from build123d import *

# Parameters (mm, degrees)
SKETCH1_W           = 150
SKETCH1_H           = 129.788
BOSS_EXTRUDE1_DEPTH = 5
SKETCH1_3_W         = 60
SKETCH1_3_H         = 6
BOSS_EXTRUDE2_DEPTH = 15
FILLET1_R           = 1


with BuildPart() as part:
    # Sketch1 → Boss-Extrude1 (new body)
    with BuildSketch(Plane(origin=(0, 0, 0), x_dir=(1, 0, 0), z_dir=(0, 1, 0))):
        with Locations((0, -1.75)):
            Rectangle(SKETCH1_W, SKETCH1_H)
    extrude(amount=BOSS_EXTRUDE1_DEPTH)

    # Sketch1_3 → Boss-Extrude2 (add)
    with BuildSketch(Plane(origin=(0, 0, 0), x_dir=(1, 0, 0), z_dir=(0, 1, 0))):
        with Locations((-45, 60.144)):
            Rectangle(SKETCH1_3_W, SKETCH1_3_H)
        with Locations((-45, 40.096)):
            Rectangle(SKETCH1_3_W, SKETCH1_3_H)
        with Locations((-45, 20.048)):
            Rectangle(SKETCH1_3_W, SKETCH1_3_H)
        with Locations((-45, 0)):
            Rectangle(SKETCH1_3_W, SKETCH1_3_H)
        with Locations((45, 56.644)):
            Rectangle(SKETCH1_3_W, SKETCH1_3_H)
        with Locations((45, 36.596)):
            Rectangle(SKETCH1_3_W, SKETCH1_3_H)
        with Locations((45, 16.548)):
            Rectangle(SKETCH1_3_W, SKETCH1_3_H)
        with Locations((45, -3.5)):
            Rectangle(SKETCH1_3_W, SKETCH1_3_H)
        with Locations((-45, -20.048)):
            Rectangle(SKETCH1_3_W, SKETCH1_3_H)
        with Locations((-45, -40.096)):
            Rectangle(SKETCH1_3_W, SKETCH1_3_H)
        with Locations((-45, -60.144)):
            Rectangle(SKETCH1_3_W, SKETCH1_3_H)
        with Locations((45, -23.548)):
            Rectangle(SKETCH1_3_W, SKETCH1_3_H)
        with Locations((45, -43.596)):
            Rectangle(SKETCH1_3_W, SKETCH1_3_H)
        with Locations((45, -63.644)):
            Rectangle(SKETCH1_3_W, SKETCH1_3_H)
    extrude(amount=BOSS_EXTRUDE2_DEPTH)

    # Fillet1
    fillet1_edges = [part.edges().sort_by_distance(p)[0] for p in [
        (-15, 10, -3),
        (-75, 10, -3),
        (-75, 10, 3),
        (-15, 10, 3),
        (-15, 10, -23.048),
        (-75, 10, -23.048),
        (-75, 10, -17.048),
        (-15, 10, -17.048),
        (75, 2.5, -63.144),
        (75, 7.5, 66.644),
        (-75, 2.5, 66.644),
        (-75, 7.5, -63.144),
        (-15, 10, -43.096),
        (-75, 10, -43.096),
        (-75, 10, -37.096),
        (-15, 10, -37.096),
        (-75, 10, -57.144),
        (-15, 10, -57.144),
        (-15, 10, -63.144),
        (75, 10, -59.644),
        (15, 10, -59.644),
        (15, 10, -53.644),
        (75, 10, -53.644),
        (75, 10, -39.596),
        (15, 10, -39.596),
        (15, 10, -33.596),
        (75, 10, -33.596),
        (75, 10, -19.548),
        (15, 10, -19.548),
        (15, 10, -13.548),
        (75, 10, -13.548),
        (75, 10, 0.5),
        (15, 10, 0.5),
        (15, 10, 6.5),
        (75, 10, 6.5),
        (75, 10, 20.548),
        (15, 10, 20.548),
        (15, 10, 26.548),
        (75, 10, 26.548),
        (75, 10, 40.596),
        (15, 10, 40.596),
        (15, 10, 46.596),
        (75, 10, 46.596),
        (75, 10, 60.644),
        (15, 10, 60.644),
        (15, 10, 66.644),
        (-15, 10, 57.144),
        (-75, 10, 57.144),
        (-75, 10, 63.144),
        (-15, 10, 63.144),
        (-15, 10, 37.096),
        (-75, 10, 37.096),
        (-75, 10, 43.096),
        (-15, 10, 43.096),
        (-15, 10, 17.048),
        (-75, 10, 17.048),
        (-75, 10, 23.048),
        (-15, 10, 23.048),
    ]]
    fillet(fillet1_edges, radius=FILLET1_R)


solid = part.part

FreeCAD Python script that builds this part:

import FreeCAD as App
import Part
import Sketcher
from FreeCAD import Vector


def edges_at(feature, points):
    """Names of the edges that pass closest to the given points."""
    edges = feature.Shape.Edges
    near = lambda p: min(range(len(edges)), key=lambda i: edges[i].distToShape(Part.Vertex(*p))[0])
    return sorted({f"Edge{near(p) + 1}" for p in points})


def add_polygon(sketch, points):
    """Adds a closed chain of lines whose ends are joined by coincident constraints."""
    first, n = sketch.GeometryCount, len(points)
    for a, b in zip(points, points[1:] + points[:1]):
        sketch.addGeometry(Part.LineSegment(App.Vector(*a, 0), App.Vector(*b, 0)), False)
    for i in range(n):
        sketch.addConstraint(Sketcher.Constraint("Coincident", first + i, 2, first + (i + 1) % n, 1))

doc = App.newDocument("Part")
params = doc.addObject("Spreadsheet::Sheet", "Params")
for row, (alias, value) in enumerate([
    ("sketch1_width", "150 mm"),
    ("pad1_length", "5 mm"),
    ("sketch2_width", "60 mm"),
    ("sketch2_height", "6 mm"),
    ("pad2_length", "15 mm"),
    ("fillet_radius", "1 mm"),
], start=1):
    params.set(f"A{row}", alias)
    params.set(f"B{row}", "=" + value)
    params.setAlias(f"B{row}", alias)

body = doc.addObject("PartDesign::Body", "Body")

# Sketch on XZ plane
sketch1 = body.newObject("Sketcher::SketchObject", "Sketch")
sketch1.AttachmentSupport = (doc.getObject("XZ_Plane"), [""])
sketch1.MapMode = "FlatFace"
add_polygon(sketch1, [(-75, -63), (-75, 67), (75, 67), (75, -63)])  # lines 0-3
sketch1.addConstraint([
    Sketcher.Constraint("Vertical", 0),
    Sketcher.Constraint("Horizontal", 1),
    Sketcher.Constraint("Vertical", 2),
    Sketcher.Constraint("Horizontal", 3),
    Sketcher.Constraint("DistanceX", 1, 1, 1, 2, 150.0),
    Sketcher.Constraint("DistanceX", 0, 2, -1, 1, 75.0),
    Sketcher.Constraint("DistanceY", 0, 1, 0, 2, 129.788),
    Sketcher.Constraint("DistanceY", -1, 1, 0, 2, 66.644),
])
sketch1.setExpression("Constraints[8]", "Params.sketch1_width")
pad1 = body.newObject("PartDesign::Pad", "Pad")
pad1.Profile = sketch1
pad1.setExpression("Length", "Params.pad1_length")
pad1.Reversed = True

# Sketch on XZ plane
sketch2 = body.newObject("Sketcher::SketchObject", "Sketch001")
sketch2.AttachmentSupport = (doc.getObject("XZ_Plane"), [""])
sketch2.MapMode = "FlatFace"
add_polygon(sketch2, [(-75, -63), (-75, -57), (-15, -57), (-15, -63)])  # lines 0-3
add_polygon(sketch2, [(-75, -43), (-75, -37), (-15, -37), (-15, -43)])  # lines 4-7
add_polygon(sketch2, [(-75, -23), (-75, -17), (-15, -17), (-15, -23)])  # lines 8-11
add_polygon(sketch2, [(-75, -3), (-75, 3), (-15, 3), (-15, -3)])  # lines 12-15
add_polygon(sketch2, [(15, -60), (15, -54), (75, -54), (75, -60)])  # lines 16-19
add_polygon(sketch2, [(15, -40), (15, -34), (75, -34), (75, -40)])  # lines 20-23
add_polygon(sketch2, [(15, -20), (15, -14), (75, -14), (75, -20)])  # lines 24-27
add_polygon(sketch2, [(15, 0), (15, 6), (75, 6), (75, 0)])  # lines 28-31
add_polygon(sketch2, [(-75, 17), (-75, 23), (-15, 23), (-15, 17)])  # lines 32-35
add_polygon(sketch2, [(-75, 37), (-75, 43), (-15, 43), (-15, 37)])  # lines 36-39
add_polygon(sketch2, [(-75, 57), (-75, 63), (-15, 63), (-15, 57)])  # lines 40-43
add_polygon(sketch2, [(15, 21), (15, 27), (75, 27), (75, 21)])  # lines 44-47
add_polygon(sketch2, [(15, 41), (15, 47), (75, 47), (75, 41)])  # lines 48-51
add_polygon(sketch2, [(15, 61), (15, 67), (75, 67), (75, 61)])  # lines 52-55
sketch2.addConstraint([
    Sketcher.Constraint("Vertical", 0),
    Sketcher.Constraint("Horizontal", 1),
    Sketcher.Constraint("Vertical", 2),
    Sketcher.Constraint("Horizontal", 3),
    Sketcher.Constraint("Vertical", 4),
    Sketcher.Constraint("Horizontal", 5),
    Sketcher.Constraint("Vertical", 6),
    Sketcher.Constraint("Horizontal", 7),
    Sketcher.Constraint("Vertical", 8),
    Sketcher.Constraint("Horizontal", 9),
    Sketcher.Constraint("Vertical", 10),
    Sketcher.Constraint("Horizontal", 11),
    Sketcher.Constraint("Vertical", 12),
    Sketcher.Constraint("Horizontal", 13),
    Sketcher.Constraint("Vertical", 14),
    Sketcher.Constraint("Horizontal", 15),
    Sketcher.Constraint("Vertical", 16),
    Sketcher.Constraint("Horizontal", 17),
    Sketcher.Constraint("Vertical", 18),
    Sketcher.Constraint("Horizontal", 19),
    Sketcher.Constraint("Vertical", 20),
    Sketcher.Constraint("Horizontal", 21),
    Sketcher.Constraint("Vertical", 22),
    Sketcher.Constraint("Horizontal", 23),
    Sketcher.Constraint("Vertical", 24),
    Sketcher.Constraint("Horizontal", 25),
    Sketcher.Constraint("Vertical", 26),
    Sketcher.Constraint("Horizontal", 27),
    Sketcher.Constraint("Vertical", 28),
    Sketcher.Constraint("Horizontal", 29),
    Sketcher.Constraint("Vertical", 30),
    Sketcher.Constraint("Horizontal", 31),
    Sketcher.Constraint("Vertical", 32),
    Sketcher.Constraint("Horizontal", 33),
    Sketcher.Constraint("Vertical", 34),
    Sketcher.Constraint("Horizontal", 35),
    Sketcher.Constraint("Vertical", 36),
    Sketcher.Constraint("Horizontal", 37),
    Sketcher.Constraint("Vertical", 38),
    Sketcher.Constraint("Horizontal", 39),
    Sketcher.Constraint("Vertical", 40),
    Sketcher.Constraint("Horizontal", 41),
    Sketcher.Constraint("Vertical", 42),
    Sketcher.Constraint("Horizontal", 43),
    Sketcher.Constraint("Vertical", 44),
    Sketcher.Constraint("Horizontal", 45),
    Sketcher.Constraint("Vertical", 46),
    Sketcher.Constraint("Horizontal", 47),
    Sketcher.Constraint("Vertical", 48),
    Sketcher.Constraint("Horizontal", 49),
    Sketcher.Constraint("Vertical", 50),
    Sketcher.Constraint("Horizontal", 51),
    Sketcher.Constraint("Vertical", 52),
    Sketcher.Constraint("Horizontal", 53),
    Sketcher.Constraint("Vertical", 54),
    Sketcher.Constraint("Horizontal", 55),
    Sketcher.Constraint("Symmetric", 11, 2, 32, 2, -1),
    Sketcher.Constraint("Symmetric", 9, 2, 34, 2, -1),
    Sketcher.Constraint("Symmetric", 7, 2, 36, 2, -1),
    Sketcher.Constraint("Symmetric", 5, 2, 38, 2, -1),
    Sketcher.Constraint("Symmetric", 3, 2, 40, 2, -1),
    Sketcher.Constraint("Symmetric", 1, 2, 42, 2, -1),
    Sketcher.Constraint("Vertical", 3, 2, 4, 2),
    Sketcher.Constraint("Vertical", 2, 2, 5, 2),
    Sketcher.Constraint("Vertical", 7, 2, 8, 2),
    Sketcher.Constraint("Vertical", 6, 2, 9, 2),
    Sketcher.Constraint("Vertical", 11, 2, 12, 2),
    Sketcher.Constraint("Vertical", 10, 2, 13, 2),
    Sketcher.Constraint("Vertical", 19, 2, 20, 2),
    Sketcher.Constraint("Vertical", 18, 2, 21, 2),
    Sketcher.Constraint("Vertical", 23, 2, 24, 2),
    Sketcher.Constraint("Vertical", 22, 2, 25, 2),
    Sketcher.Constraint("Vertical", 27, 2, 28, 2),
    Sketcher.Constraint("Vertical", 26, 2, 29, 2),
    Sketcher.Constraint("Vertical", 31, 2, 44, 2),
    Sketcher.Constraint("Vertical", 30, 2, 45, 2),
    Sketcher.Constraint("Vertical", 47, 2, 48, 2),
    Sketcher.Constraint("Vertical", 46, 2, 49, 2),
    Sketcher.Constraint("Vertical", 51, 2, 52, 2),
    Sketcher.Constraint("Vertical", 50, 2, 53, 2),
    Sketcher.Constraint("Equal", 15, 17),
    Sketcher.Constraint("Equal", 2, 4),
    Sketcher.Constraint("Equal", 6, 8),
    Sketcher.Constraint("Equal", 10, 12),
    Sketcher.Constraint("Equal", 14, 16),
    Sketcher.Constraint("Equal", 18, 20),
    Sketcher.Constraint("Equal", 22, 24),
    Sketcher.Constraint("Equal", 26, 28),
    Sketcher.Constraint("Equal", 42, 44),
    Sketcher.Constraint("Equal", 46, 48),
    Sketcher.Constraint("Equal", 50, 52),
    Sketcher.Constraint("DistanceX", 1, 1, 1, 2, 60.0),
    Sketcher.Constraint("DistanceY", 0, 1, 0, 2, 6.0),
    Sketcher.Constraint("DistanceX", 0, 2, -1, 1, 75.0),
    Sketcher.Constraint("DistanceY", -1, 1, 12, 2, 3.0),
    Sketcher.Constraint("DistanceX", -1, 1, 16, 2, 15.0),
    Sketcher.Constraint("DistanceY", -1, 1, 28, 2, 6.5),
    Sketcher.Constraint("DistanceY", 1, 2, 16, 2, 3.5),
    Sketcher.Constraint("DistanceY", 5, 2, 20, 2, 3.5),
    Sketcher.Constraint("DistanceY", 9, 2, 24, 2, 3.5),
    Sketcher.Constraint("DistanceY", 33, 2, 44, 2, 3.5),
    Sketcher.Constraint("DistanceY", 37, 2, 48, 2, 3.5),
    Sketcher.Constraint("DistanceY", 41, 2, 52, 2, 3.5),
    Sketcher.Constraint("DistanceY", 0, 2, -1, 1, 57.144),
    Sketcher.Constraint("DistanceY", 4, 2, -1, 1, 37.096),
    Sketcher.Constraint("DistanceY", 8, 2, -1, 1, 17.048),
])
sketch2.setExpression("Constraints[147]", "Params.sketch2_width")
sketch2.setExpression("Constraints[148]", "Params.sketch2_height")
pad2 = body.newObject("PartDesign::Pad", "Pad001")
pad2.Profile = sketch2
pad2.setExpression("Length", "Params.pad2_length")
pad2.Reversed = True
doc.recompute()

fillet = body.newObject("PartDesign::Fillet", "Fillet")
fillet.Base = (pad2, edges_at(pad2, [
    (-15, 10, -3),
    (-75, 10, -3),
    (-75, 10, 3),
    (-15, 10, 3),
    (-15, 10, -23.048),
    (-75, 10, -23.048),
    (-75, 10, -17.048),
    (-15, 10, -17.048),
    (75, 2.5, -63.144),
    (75, 7.5, 66.644),
    (-75, 2.5, 66.644),
    (-75, 7.5, -63.144),
    (-15, 10, -43.096),
    (-75, 10, -43.096),
    (-75, 10, -37.096),
    (-15, 10, -37.096),
    (-75, 10, -57.144),
    (-15, 10, -57.144),
    (-15, 10, -63.144),
    (75, 10, -59.644),
    (15, 10, -59.644),
    (15, 10, -53.644),
    (75, 10, -53.644),
    (75, 10, -39.596),
    (15, 10, -39.596),
    (15, 10, -33.596),
    (75, 10, -33.596),
    (75, 10, -19.548),
    (15, 10, -19.548),
    (15, 10, -13.548),
    (75, 10, -13.548),
    (75, 10, 0.5),
    (15, 10, 0.5),
    (15, 10, 6.5),
    (75, 10, 6.5),
    (75, 10, 20.548),
    (15, 10, 20.548),
    (15, 10, 26.548),
    (75, 10, 26.548),
    (75, 10, 40.596),
    (15, 10, 40.596),
    (15, 10, 46.596),
    (75, 10, 46.596),
    (75, 10, 60.644),
    (15, 10, 60.644),
    (15, 10, 66.644),
    (-15, 10, 57.144),
    (-75, 10, 57.144),
    (-75, 10, 63.144),
    (-15, 10, 63.144),
    (-15, 10, 37.096),
    (-75, 10, 37.096),
    (-75, 10, 43.096),
    (-15, 10, 43.096),
    (-15, 10, 17.048),
    (-75, 10, 17.048),
    (-75, 10, 23.048),
    (-15, 10, 23.048),
]))
fillet.setExpression("Radius", "Params.fillet_radius")

doc.recompute()
